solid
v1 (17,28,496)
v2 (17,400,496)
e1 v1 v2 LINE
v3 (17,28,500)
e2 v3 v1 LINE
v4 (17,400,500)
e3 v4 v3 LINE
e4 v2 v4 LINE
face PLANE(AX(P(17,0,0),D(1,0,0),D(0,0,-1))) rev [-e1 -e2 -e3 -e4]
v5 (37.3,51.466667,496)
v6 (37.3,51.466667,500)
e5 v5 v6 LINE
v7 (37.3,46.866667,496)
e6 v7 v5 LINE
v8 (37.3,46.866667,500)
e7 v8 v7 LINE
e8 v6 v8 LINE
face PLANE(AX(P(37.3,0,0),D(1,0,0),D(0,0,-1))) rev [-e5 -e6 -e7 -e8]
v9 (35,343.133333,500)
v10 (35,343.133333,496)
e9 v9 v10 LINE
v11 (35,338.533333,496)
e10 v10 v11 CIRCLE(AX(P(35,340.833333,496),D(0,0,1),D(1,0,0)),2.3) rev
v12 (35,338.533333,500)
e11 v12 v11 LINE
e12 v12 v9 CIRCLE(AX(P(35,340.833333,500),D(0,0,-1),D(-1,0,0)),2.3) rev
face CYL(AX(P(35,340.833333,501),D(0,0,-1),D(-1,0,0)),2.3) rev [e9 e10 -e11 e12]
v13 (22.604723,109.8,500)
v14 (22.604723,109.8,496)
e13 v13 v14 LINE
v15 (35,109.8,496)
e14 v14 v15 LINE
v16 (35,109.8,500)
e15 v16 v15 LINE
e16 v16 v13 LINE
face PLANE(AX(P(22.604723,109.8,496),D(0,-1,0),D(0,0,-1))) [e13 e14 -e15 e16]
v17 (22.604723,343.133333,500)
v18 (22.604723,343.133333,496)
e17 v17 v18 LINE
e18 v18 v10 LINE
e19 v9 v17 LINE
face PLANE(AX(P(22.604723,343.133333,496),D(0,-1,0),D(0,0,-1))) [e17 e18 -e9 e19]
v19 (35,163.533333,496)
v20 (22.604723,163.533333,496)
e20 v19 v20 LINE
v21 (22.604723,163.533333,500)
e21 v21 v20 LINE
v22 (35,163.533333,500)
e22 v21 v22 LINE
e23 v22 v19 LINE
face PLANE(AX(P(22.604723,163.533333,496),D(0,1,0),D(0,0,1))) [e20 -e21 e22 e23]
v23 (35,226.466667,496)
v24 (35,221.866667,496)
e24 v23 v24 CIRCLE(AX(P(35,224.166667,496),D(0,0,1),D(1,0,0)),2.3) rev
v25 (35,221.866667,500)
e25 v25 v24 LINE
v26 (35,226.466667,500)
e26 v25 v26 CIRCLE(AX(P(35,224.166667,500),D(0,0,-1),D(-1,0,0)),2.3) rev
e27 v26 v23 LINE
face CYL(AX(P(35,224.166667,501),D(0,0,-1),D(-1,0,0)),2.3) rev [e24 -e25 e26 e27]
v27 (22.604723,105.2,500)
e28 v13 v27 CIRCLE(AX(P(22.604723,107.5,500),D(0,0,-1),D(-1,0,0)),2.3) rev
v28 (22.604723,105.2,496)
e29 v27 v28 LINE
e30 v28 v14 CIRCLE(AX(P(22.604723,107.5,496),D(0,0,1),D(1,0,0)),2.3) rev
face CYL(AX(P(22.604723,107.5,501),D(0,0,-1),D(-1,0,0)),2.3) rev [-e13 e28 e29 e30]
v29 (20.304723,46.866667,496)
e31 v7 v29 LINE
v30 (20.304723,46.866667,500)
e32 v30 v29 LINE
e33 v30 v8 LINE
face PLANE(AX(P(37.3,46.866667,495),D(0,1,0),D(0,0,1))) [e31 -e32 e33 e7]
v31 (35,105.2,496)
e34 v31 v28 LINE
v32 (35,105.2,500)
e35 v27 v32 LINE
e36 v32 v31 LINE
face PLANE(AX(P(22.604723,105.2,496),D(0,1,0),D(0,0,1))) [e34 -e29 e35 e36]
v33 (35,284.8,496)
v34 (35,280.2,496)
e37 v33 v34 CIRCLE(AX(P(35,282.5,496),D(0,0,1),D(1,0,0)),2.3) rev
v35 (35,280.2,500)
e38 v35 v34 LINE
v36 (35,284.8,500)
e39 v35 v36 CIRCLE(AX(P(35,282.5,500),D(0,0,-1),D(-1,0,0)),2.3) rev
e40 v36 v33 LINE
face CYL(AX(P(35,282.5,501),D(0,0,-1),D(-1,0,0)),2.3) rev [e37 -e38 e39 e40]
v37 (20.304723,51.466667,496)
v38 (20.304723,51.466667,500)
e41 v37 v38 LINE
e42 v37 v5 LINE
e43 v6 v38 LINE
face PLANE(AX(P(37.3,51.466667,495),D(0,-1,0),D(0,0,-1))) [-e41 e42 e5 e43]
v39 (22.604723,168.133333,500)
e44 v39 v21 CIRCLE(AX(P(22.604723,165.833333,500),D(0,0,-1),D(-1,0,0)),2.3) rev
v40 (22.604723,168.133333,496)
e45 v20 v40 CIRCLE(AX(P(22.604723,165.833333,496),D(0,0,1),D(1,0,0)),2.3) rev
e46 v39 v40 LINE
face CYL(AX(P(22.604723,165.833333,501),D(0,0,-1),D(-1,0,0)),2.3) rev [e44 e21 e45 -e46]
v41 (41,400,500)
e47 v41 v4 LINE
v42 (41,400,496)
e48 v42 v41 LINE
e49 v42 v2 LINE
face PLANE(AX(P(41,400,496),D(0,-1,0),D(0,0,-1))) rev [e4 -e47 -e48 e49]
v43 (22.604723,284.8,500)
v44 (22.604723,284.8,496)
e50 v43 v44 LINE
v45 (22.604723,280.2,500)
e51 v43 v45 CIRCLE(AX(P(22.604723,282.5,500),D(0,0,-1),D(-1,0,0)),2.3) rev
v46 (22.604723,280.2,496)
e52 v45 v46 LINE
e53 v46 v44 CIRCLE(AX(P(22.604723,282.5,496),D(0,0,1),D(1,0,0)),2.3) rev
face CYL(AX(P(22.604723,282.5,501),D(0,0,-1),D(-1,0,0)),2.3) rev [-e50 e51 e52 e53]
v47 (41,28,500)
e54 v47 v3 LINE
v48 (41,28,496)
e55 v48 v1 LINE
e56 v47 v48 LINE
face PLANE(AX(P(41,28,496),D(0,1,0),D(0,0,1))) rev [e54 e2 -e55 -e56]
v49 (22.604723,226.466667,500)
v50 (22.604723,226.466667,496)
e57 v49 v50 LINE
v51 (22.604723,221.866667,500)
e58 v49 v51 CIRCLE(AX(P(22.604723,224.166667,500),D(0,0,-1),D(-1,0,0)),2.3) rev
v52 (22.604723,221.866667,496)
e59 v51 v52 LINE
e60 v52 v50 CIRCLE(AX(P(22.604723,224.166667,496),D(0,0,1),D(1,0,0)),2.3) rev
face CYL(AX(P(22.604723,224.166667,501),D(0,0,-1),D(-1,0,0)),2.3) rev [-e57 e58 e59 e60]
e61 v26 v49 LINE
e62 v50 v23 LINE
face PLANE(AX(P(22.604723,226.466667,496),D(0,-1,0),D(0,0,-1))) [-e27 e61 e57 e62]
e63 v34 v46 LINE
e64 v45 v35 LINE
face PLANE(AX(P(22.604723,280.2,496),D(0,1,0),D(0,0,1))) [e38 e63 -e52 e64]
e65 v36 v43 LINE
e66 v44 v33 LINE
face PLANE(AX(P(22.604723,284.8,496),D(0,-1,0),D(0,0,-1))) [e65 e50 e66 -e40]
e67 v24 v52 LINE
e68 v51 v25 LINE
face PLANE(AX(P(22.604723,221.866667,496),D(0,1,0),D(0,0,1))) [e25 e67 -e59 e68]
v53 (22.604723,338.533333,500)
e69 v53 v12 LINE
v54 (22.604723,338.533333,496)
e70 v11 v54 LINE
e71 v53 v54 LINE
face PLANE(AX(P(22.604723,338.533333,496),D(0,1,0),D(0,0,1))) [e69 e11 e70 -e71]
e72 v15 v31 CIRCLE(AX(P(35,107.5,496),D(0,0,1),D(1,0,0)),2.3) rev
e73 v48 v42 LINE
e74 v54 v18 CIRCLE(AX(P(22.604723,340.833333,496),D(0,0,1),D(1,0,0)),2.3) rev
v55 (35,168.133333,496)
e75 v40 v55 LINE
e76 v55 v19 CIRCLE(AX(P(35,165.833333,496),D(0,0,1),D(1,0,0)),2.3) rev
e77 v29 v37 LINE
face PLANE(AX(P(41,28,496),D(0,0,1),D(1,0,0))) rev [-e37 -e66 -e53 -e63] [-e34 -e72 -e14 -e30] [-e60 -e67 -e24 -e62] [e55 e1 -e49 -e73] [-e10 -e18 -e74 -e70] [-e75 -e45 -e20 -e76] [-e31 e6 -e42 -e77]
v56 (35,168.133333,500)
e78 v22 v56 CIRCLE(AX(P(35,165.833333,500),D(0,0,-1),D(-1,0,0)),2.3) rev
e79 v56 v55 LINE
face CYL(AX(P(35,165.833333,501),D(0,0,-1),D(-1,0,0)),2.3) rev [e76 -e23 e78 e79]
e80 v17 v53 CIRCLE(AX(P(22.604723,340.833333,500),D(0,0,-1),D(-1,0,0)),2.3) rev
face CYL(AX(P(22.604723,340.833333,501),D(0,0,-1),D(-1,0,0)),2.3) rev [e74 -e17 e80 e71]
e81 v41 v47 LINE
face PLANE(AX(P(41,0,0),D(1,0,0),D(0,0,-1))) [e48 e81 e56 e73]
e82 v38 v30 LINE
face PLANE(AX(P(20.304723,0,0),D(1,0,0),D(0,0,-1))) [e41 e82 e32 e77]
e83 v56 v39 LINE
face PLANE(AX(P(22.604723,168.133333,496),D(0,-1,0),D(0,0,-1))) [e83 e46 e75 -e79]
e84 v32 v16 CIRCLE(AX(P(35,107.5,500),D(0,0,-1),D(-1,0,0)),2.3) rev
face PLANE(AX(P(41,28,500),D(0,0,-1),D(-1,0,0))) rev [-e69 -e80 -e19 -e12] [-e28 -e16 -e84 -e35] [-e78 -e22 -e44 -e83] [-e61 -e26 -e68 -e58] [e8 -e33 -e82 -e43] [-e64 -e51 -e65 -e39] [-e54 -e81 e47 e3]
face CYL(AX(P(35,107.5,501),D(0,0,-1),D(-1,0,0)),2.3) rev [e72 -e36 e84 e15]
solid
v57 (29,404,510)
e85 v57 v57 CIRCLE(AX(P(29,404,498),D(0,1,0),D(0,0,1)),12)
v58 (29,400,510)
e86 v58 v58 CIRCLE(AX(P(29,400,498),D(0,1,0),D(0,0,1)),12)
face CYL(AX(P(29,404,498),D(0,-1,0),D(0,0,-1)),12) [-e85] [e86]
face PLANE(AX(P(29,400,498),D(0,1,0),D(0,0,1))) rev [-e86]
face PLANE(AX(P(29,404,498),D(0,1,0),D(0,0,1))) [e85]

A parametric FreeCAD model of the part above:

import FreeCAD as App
import Part
import Sketcher

V = App.Vector

doc = App.newDocument("Part")
body = doc.addObject("PartDesign::Body", "Body")

# Sketch on YZ plane
sketch1 = body.newObject("Sketcher::SketchObject", "Sketch")
sketch1.AttachmentSupport = (doc.getObject("YZ_Plane"), [""])
sketch1.MapMode = "FlatFace"
sketch1.AttachmentOffset = App.Placement(V(0, 0, 20.304723), App.Rotation())
sketch1.addGeometry([
    Part.LineSegment(V(51.5, 501, 0), V(46.9, 501, 0)),
    Part.LineSegment(V(46.9, 501, 0), V(46.9, 495, 0)),
    Part.LineSegment(V(46.9, 495, 0), V(51.5, 495, 0)),
    Part.LineSegment(V(51.5, 495, 0), V(51.5, 501, 0)),
], False)
sketch1.addConstraint([
    Sketcher.Constraint("Coincident", 0, 2, 1, 1),
    Sketcher.Constraint("Coincident", 1, 2, 2, 1),
    Sketcher.Constraint("Coincident", 2, 2, 3, 1),
    Sketcher.Constraint("Coincident", 3, 2, 0, 1),
    Sketcher.Constraint("Horizontal", 0),
    Sketcher.Constraint("Vertical", 1),
    Sketcher.Constraint("Horizontal", 2),
    Sketcher.Constraint("Vertical", 3),
    Sketcher.Constraint("DistanceY", 1, 2, 1, 1, 6.0),
    Sketcher.Constraint("DistanceX", 0, 2, 0, 1, 4.6),
    Sketcher.Constraint("DistanceY", -1, 1, 0, 2, 501.0),
    Sketcher.Constraint("DistanceX", -1, 1, 0, 2, 46.866667),
])
pad1 = body.newObject("PartDesign::Pad", "Pad")
pad1.Profile = sketch1
pad1.Length = 16.995277
body2 = doc.addObject("PartDesign::Body", "Body001")

# Sketch on YZ plane
sketch2 = body2.newObject("Sketcher::SketchObject", "Sketch001")
sketch2.AttachmentSupport = (doc.getObject("YZ_Plane001"), [""])
sketch2.MapMode = "FlatFace"
sketch2.AttachmentOffset = App.Placement(V(0, 0, 17), App.Rotation())
sketch2.addGeometry([
    Part.LineSegment(V(400, 500, 0), V(28, 500, 0)),
    Part.LineSegment(V(28, 500, 0), V(28, 496, 0)),
    Part.LineSegment(V(28, 496, 0), V(400, 496, 0)),
    Part.LineSegment(V(400, 496, 0), V(400, 500, 0)),
], False)
sketch2.addConstraint([
    Sketcher.Constraint("Coincident", 0, 2, 1, 1),
    Sketcher.Constraint("Coincident", 1, 2, 2, 1),
    Sketcher.Constraint("Coincident", 2, 2, 3, 1),
    Sketcher.Constraint("Coincident", 3, 2, 0, 1),
    Sketcher.Constraint("Horizontal", 0),
    Sketcher.Constraint("Vertical", 1),
    Sketcher.Constraint("Horizontal", 2),
    Sketcher.Constraint("Vertical", 3),
    Sketcher.Constraint("DistanceX", 0, 2, 0, 1, 372.0),
    Sketcher.Constraint("DistanceY", 1, 2, 1, 1, 4.0),
    Sketcher.Constraint("DistanceX", -1, 1, 0, 2, 28.0),
    Sketcher.Constraint("DistanceY", -1, 1, 0, 2, 500.0),
])
pad2 = body2.newObject("PartDesign::Pad", "Pad001")
pad2.Profile = sketch2
pad2.Length = 24
doc.recompute()

boolean = body2.newObject("PartDesign::Boolean", "Boolean")
boolean.Type = "Cut"
boolean.addObjects([body])
body3 = doc.addObject("PartDesign::Body", "Body002")

# Sketch on XY plane
sketch3 = body3.newObject("Sketcher::SketchObject", "Sketch002")
sketch3.AttachmentSupport = (doc.getObject("XY_Plane002"), [""])
sketch3.MapMode = "FlatFace"
sketch3.AttachmentOffset = App.Placement(V(0, 0, 495), App.Rotation())
sketch3.addGeometry(Part.Circle(V(22.6, 107.5, 0), V(0, 0, 1), 2.3), False)
sketch3.addConstraint([
    Sketcher.Constraint("Diameter", 0, 4.6),
    Sketcher.Constraint("DistanceY", -1, 1, 0, 3, 107.5),
    Sketcher.Constraint("DistanceX", -1, 1, 0, 3, 22.604723),
])
pad3 = body3.newObject("PartDesign::Pad", "Pad002")
pad3.Profile = sketch3
pad3.Length = 6
doc.recompute()

boolean2 = body2.newObject("PartDesign::Boolean", "Boolean001")
boolean2.Type = "Cut"
boolean2.addObjects([body3])
body4 = doc.addObject("PartDesign::Body", "Body003")

# Sketch on XY plane
sketch4 = body4.newObject("Sketcher::SketchObject", "Sketch003")
sketch4.AttachmentSupport = (doc.getObject("XY_Plane003"), [""])
sketch4.MapMode = "FlatFace"
sketch4.AttachmentOffset = App.Placement(V(0, 0, 495), App.Rotation())
sketch4.addGeometry(Part.Circle(V(35, 107.5, 0), V(0, 0, 1), 2.3), False)
sketch4.addConstraint([
    Sketcher.Constraint("Diameter", 0, 4.6),
    Sketcher.Constraint("DistanceX", -1, 1, 0, 3, 35.0),
    Sketcher.Constraint("DistanceY", -1, 1, 0, 3, 107.5),
])
pad4 = body4.newObject("PartDesign::Pad", "Pad003")
pad4.Profile = sketch4
pad4.Length = 6
doc.recompute()

boolean3 = body2.newObject("PartDesign::Boolean", "Boolean002")
boolean3.Type = "Cut"
boolean3.addObjects([body4])

# Sketch on XY plane
sketch5 = body2.newObject("Sketcher::SketchObject", "Sketch004")
sketch5.AttachmentSupport = (doc.getObject("XY_Plane001"), [""])
sketch5.MapMode = "FlatFace"
sketch5.addGeometry([
    Part.LineSegment(V(22.6, 109.8, 0), V(22.6, 105.2, 0)),
    Part.LineSegment(V(22.6, 105.2, 0), V(35, 105.2, 0)),
    Part.LineSegment(V(35, 105.2, 0), V(35, 109.8, 0)),
    Part.LineSegment(V(35, 109.8, 0), V(22.6, 109.8, 0)),
], False)
sketch5.addConstraint([
    Sketcher.Constraint("Coincident", 0, 2, 1, 1),
    Sketcher.Constraint("Coincident", 1, 2, 2, 1),
    Sketcher.Constraint("Coincident", 2, 2, 3, 1),
    Sketcher.Constraint("Coincident", 3, 2, 0, 1),
    Sketcher.Constraint("Vertical", 0),
    Sketcher.Constraint("Horizontal", 1),
    Sketcher.Constraint("Vertical", 2),
    Sketcher.Constraint("Horizontal", 3),
    Sketcher.Constraint("DistanceY", 0, 2, 0, 1, 4.6),
    Sketcher.Constraint("DistanceX", -1, 1, 1, 2, 35.0),
    Sketcher.Constraint("DistanceY", -1, 1, 0, 2, 105.2),
    Sketcher.Constraint("DistanceX", 1, 1, 1, 2, 12.395277),
])
pocket1 = body2.newObject("PartDesign::Pocket", "Pocket")
pocket1.Profile = sketch5
pocket1.Type = "ThroughAll"
pocket1.Midplane = True
body5 = doc.addObject("PartDesign::Body", "Body004")

# Sketch on XY plane
sketch6 = body5.newObject("Sketcher::SketchObject", "Sketch005")
sketch6.AttachmentSupport = (doc.getObject("XY_Plane004"), [""])
sketch6.MapMode = "FlatFace"
sketch6.AttachmentOffset = App.Placement(V(0, 0, 495), App.Rotation())
sketch6.addGeometry(Part.Circle(V(22.6, 165.8, 0), V(0, 0, 1), 2.3), False)
sketch6.addConstraint([
    Sketcher.Constraint("Diameter", 0, 4.6),
    Sketcher.Constraint("DistanceX", -1, 1, 0, 3, 22.604723),
    Sketcher.Constraint("DistanceY", -1, 1, 0, 3, 165.833333),
])
pad5 = body5.newObject("PartDesign::Pad", "Pad004")
pad5.Profile = sketch6
pad5.Length = 6
doc.recompute()

boolean4 = body2.newObject("PartDesign::Boolean", "Boolean003")
boolean4.Type = "Cut"
boolean4.addObjects([body5])
body6 = doc.addObject("PartDesign::Body", "Body005")

# Sketch on XY plane
sketch7 = body6.newObject("Sketcher::SketchObject", "Sketch006")
sketch7.AttachmentSupport = (doc.getObject("XY_Plane005"), [""])
sketch7.MapMode = "FlatFace"
sketch7.AttachmentOffset = App.Placement(V(0, 0, 495), App.Rotation())
sketch7.addGeometry(Part.Circle(V(35, 165.8, 0), V(0, 0, 1), 2.3), False)
sketch7.addConstraint([
    Sketcher.Constraint("Diameter", 0, 4.6),
    Sketcher.Constraint("DistanceX", -1, 1, 0, 3, 35.0),
    Sketcher.Constraint("DistanceY", -1, 1, 0, 3, 165.833333),
])
pad6 = body6.newObject("PartDesign::Pad", "Pad005")
pad6.Profile = sketch7
pad6.Length = 6
doc.recompute()

boolean5 = body2.newObject("PartDesign::Boolean", "Boolean004")
boolean5.Type = "Cut"
boolean5.addObjects([body6])

# Sketch on XY plane
sketch8 = body2.newObject("Sketcher::SketchObject", "Sketch007")
sketch8.AttachmentSupport = (doc.getObject("XY_Plane001"), [""])
sketch8.MapMode = "FlatFace"
sketch8.addGeometry([
    Part.LineSegment(V(22.6, 168.1, 0), V(22.6, 163.5, 0)),
    Part.LineSegment(V(22.6, 163.5, 0), V(35, 163.5, 0)),
    Part.LineSegment(V(35, 163.5, 0), V(35, 168.1, 0)),
    Part.LineSegment(V(35, 168.1, 0), V(22.6, 168.1, 0)),
], False)
sketch8.addConstraint([
    Sketcher.Constraint("Coincident", 0, 2, 1, 1),
    Sketcher.Constraint("Coincident", 1, 2, 2, 1),
    Sketcher.Constraint("Coincident", 2, 2, 3, 1),
    Sketcher.Constraint("Coincident", 3, 2, 0, 1),
    Sketcher.Constraint("Vertical", 0),
    Sketcher.Constraint("Horizontal", 1),
    Sketcher.Constraint("Vertical", 2),
    Sketcher.Constraint("Horizontal", 3),
    Sketcher.Constraint("DistanceY", 0, 2, 0, 1, 4.6),
    Sketcher.Constraint("DistanceX", -1, 1, 1, 2, 35.0),
    Sketcher.Constraint("DistanceX", 1, 1, 1, 2, 12.395277),
    Sketcher.Constraint("DistanceY", -1, 1, 0, 2, 163.533333),
])
pocket2 = body2.newObject("PartDesign::Pocket", "Pocket001")
pocket2.Profile = sketch8
pocket2.Type = "ThroughAll"
pocket2.Midplane = True
body7 = doc.addObject("PartDesign::Body", "Body006")

# Sketch on XY plane
sketch9 = body7.newObject("Sketcher::SketchObject", "Sketch008")
sketch9.AttachmentSupport = (doc.getObject("XY_Plane006"), [""])
sketch9.MapMode = "FlatFace"
sketch9.AttachmentOffset = App.Placement(V(0, 0, 495), App.Rotation())
sketch9.addGeometry(Part.Circle(V(22.6, 224.2, 0), V(0, 0, 1), 2.3), False)
sketch9.addConstraint([
    Sketcher.Constraint("Diameter", 0, 4.6),
    Sketcher.Constraint("DistanceX", -1, 1, 0, 3, 22.604723),
    Sketcher.Constraint("DistanceY", -1, 1, 0, 3, 224.166667),
])
pad7 = body7.newObject("PartDesign::Pad", "Pad006")
pad7.Profile = sketch9
pad7.Length = 6
doc.recompute()

boolean6 = body2.newObject("PartDesign::Boolean", "Boolean005")
boolean6.Type = "Cut"
boolean6.addObjects([body7])
body8 = doc.addObject("PartDesign::Body", "Body007")

# Sketch on XY plane
sketch10 = body8.newObject("Sketcher::SketchObject", "Sketch009")
sketch10.AttachmentSupport = (doc.getObject("XY_Plane007"), [""])
sketch10.MapMode = "FlatFace"
sketch10.AttachmentOffset = App.Placement(V(0, 0, 495), App.Rotation())
sketch10.addGeometry(Part.Circle(V(35, 224.2, 0), V(0, 0, 1), 2.3), False)
sketch10.addConstraint([
    Sketcher.Constraint("Diameter", 0, 4.6),
    Sketcher.Constraint("DistanceX", -1, 1, 0, 3, 35.0),
    Sketcher.Constraint("DistanceY", -1, 1, 0, 3, 224.166667),
])
pad8 = body8.newObject("PartDesign::Pad", "Pad007")
pad8.Profile = sketch10
pad8.Length = 6
doc.recompute()

boolean7 = body2.newObject("PartDesign::Boolean", "Boolean006")
boolean7.Type = "Cut"
boolean7.addObjects([body8])

# Sketch on XY plane
sketch11 = body2.newObject("Sketcher::SketchObject", "Sketch010")
sketch11.AttachmentSupport = (doc.getObject("XY_Plane001"), [""])
sketch11.MapMode = "FlatFace"
sketch11.addGeometry([
    Part.LineSegment(V(22.6, 226.5, 0), V(22.6, 221.9, 0)),
    Part.LineSegment(V(22.6, 221.9, 0), V(35, 221.9, 0)),
    Part.LineSegment(V(35, 221.9, 0), V(35, 226.5, 0)),
    Part.LineSegment(V(35, 226.5, 0), V(22.6, 226.5, 0)),
], False)
sketch11.addConstraint([
    Sketcher.Constraint("Coincident", 0, 2, 1, 1),
    Sketcher.Constraint("Coincident", 1, 2, 2, 1),
    Sketcher.Constraint("Coincident", 2, 2, 3, 1),
    Sketcher.Constraint("Coincident", 3, 2, 0, 1),
    Sketcher.Constraint("Vertical", 0),
    Sketcher.Constraint("Horizontal", 1),
    Sketcher.Constraint("Vertical", 2),
    Sketcher.Constraint("Horizontal", 3),
    Sketcher.Constraint("DistanceY", 0, 2, 0, 1, 4.6),
    Sketcher.Constraint("DistanceX", -1, 1, 1, 2, 35.0),
    Sketcher.Constraint("DistanceX", 1, 1, 1, 2, 12.395277),
    Sketcher.Constraint("DistanceY", -1, 1, 0, 2, 221.866667),
])
pocket3 = body2.newObject("PartDesign::Pocket", "Pocket002")
pocket3.Profile = sketch11
pocket3.Type = "ThroughAll"
pocket3.Midplane = True
body9 = doc.addObject("PartDesign::Body", "Body008")

# Sketch on XY plane
sketch12 = body9.newObject("Sketcher::SketchObject", "Sketch011")
sketch12.AttachmentSupport = (doc.getObject("XY_Plane008"), [""])
sketch12.MapMode = "FlatFace"
sketch12.AttachmentOffset = App.Placement(V(0, 0, 495), App.Rotation())
sketch12.addGeometry(Part.Circle(V(22.6, 282.5, 0), V(0, 0, 1), 2.3), False)
sketch12.addConstraint([
    Sketcher.Constraint("Diameter", 0, 4.6),
    Sketcher.Constraint("DistanceY", -1, 1, 0, 3, 282.5),
    Sketcher.Constraint("DistanceX", -1, 1, 0, 3, 22.604723),
])
pad9 = body9.newObject("PartDesign::Pad", "Pad008")
pad9.Profile = sketch12
pad9.Length = 6
doc.recompute()

boolean8 = body2.newObject("PartDesign::Boolean", "Boolean007")
boolean8.Type = "Cut"
boolean8.addObjects([body9])
body10 = doc.addObject("PartDesign::Body", "Body009")

# Sketch on XY plane
sketch13 = body10.newObject("Sketcher::SketchObject", "Sketch012")
sketch13.AttachmentSupport = (doc.getObject("XY_Plane009"), [""])
sketch13.MapMode = "FlatFace"
sketch13.AttachmentOffset = App.Placement(V(0, 0, 495), App.Rotation())
sketch13.addGeometry(Part.Circle(V(35, 282.5, 0), V(0, 0, 1), 2.3), False)
sketch13.addConstraint([
    Sketcher.Constraint("Diameter", 0, 4.6),
    Sketcher.Constraint("DistanceX", -1, 1, 0, 3, 35.0),
    Sketcher.Constraint("DistanceY", -1, 1, 0, 3, 282.5),
])
pad10 = body10.newObject("PartDesign::Pad", "Pad009")
pad10.Profile = sketch13
pad10.Length = 6
doc.recompute()

boolean9 = body2.newObject("PartDesign::Boolean", "Boolean008")
boolean9.Type = "Cut"
boolean9.addObjects([body10])

# Sketch on XY plane
sketch14 = body2.newObject("Sketcher::SketchObject", "Sketch013")
sketch14.AttachmentSupport = (doc.getObject("XY_Plane001"), [""])
sketch14.MapMode = "FlatFace"
sketch14.addGeometry([
    Part.LineSegment(V(22.6, 284.8, 0), V(22.6, 280.2, 0)),
    Part.LineSegment(V(22.6, 280.2, 0), V(35, 280.2, 0)),
    Part.LineSegment(V(35, 280.2, 0), V(35, 284.8, 0)),
    Part.LineSegment(V(35, 284.8, 0), V(22.6, 284.8, 0)),
], False)
sketch14.addConstraint([
    Sketcher.Constraint("Coincident", 0, 2, 1, 1),
    Sketcher.Constraint("Coincident", 1, 2, 2, 1),
    Sketcher.Constraint("Coincident", 2, 2, 3, 1),
    Sketcher.Constraint("Coincident", 3, 2, 0, 1),
    Sketcher.Constraint("Vertical", 0),
    Sketcher.Constraint("Horizontal", 1),
    Sketcher.Constraint("Vertical", 2),
    Sketcher.Constraint("Horizontal", 3),
    Sketcher.Constraint("DistanceY", 0, 2, 0, 1, 4.6),
    Sketcher.Constraint("DistanceX", -1, 1, 1, 2, 35.0),
    Sketcher.Constraint("DistanceY", -1, 1, 0, 2, 280.2),
    Sketcher.Constraint("DistanceX", 1, 1, 1, 2, 12.395277),
])
pocket4 = body2.newObject("PartDesign::Pocket", "Pocket003")
pocket4.Profile = sketch14
pocket4.Type = "ThroughAll"
pocket4.Midplane = True
body11 = doc.addObject("PartDesign::Body", "Body010")

# Sketch on XY plane
sketch15 = body11.newObject("Sketcher::SketchObject", "Sketch014")
sketch15.AttachmentSupport = (doc.getObject("XY_Plane010"), [""])
sketch15.MapMode = "FlatFace"
sketch15.AttachmentOffset = App.Placement(V(0, 0, 495), App.Rotation())
sketch15.addGeometry(Part.Circle(V(22.6, 340.8, 0), V(0, 0, 1), 2.3), False)
sketch15.addConstraint([
    Sketcher.Constraint("Diameter", 0, 4.6),
    Sketcher.Constraint("DistanceX", -1, 1, 0, 3, 22.604723),
    Sketcher.Constraint("DistanceY", -1, 1, 0, 3, 340.833333),
])
pad11 = body11.newObject("PartDesign::Pad", "Pad010")
pad11.Profile = sketch15
pad11.Length = 6
doc.recompute()

boolean10 = body2.newObject("PartDesign::Boolean", "Boolean009")
boolean10.Type = "Cut"
boolean10.addObjects([body11])
body12 = doc.addObject("PartDesign::Body", "Body011")

# Sketch on XY plane
sketch16 = body12.newObject("Sketcher::SketchObject", "Sketch015")
sketch16.AttachmentSupport = (doc.getObject("XY_Plane011"), [""])
sketch16.MapMode = "FlatFace"
sketch16.AttachmentOffset = App.Placement(V(0, 0, 495), App.Rotation())
sketch16.addGeometry(Part.Circle(V(35, 340.8, 0), V(0, 0, 1), 2.3), False)
sketch16.addConstraint([
    Sketcher.Constraint("Diameter", 0, 4.6),
    Sketcher.Constraint("DistanceX", -1, 1, 0, 3, 35.0),
    Sketcher.Constraint("DistanceY", -1, 1, 0, 3, 340.833333),
])
pad12 = body12.newObject("PartDesign::Pad", "Pad011")
pad12.Profile = sketch16
pad12.Length = 6
doc.recompute()

boolean11 = body2.newObject("PartDesign::Boolean", "Boolean010")
boolean11.Type = "Cut"
boolean11.addObjects([body12])

# Sketch on XY plane
sketch17 = body2.newObject("Sketcher::SketchObject", "Sketch016")
sketch17.AttachmentSupport = (doc.getObject("XY_Plane001"), [""])
sketch17.MapMode = "FlatFace"
sketch17.addGeometry([
    Part.LineSegment(V(22.6, 343.1, 0), V(22.6, 338.5, 0)),
    Part.LineSegment(V(22.6, 338.5, 0), V(35, 338.5, 0)),
    Part.LineSegment(V(35, 338.5, 0), V(35, 343.1, 0)),
    Part.LineSegment(V(35, 343.1, 0), V(22.6, 343.1, 0)),
], False)
sketch17.addConstraint([
    Sketcher.Constraint("Coincident", 0, 2, 1, 1),
    Sketcher.Constraint("Coincident", 1, 2, 2, 1),
    Sketcher.Constraint("Coincident", 2, 2, 3, 1),
    Sketcher.Constraint("Coincident", 3, 2, 0, 1),
    Sketcher.Constraint("Vertical", 0),
    Sketcher.Constraint("Horizontal", 1),
    Sketcher.Constraint("Vertical", 2),
    Sketcher.Constraint("Horizontal", 3),
    Sketcher.Constraint("DistanceY", 0, 2, 0, 1, 4.6),
    Sketcher.Constraint("DistanceX", -1, 1, 1, 2, 35.0),
    Sketcher.Constraint("DistanceX", 1, 1, 1, 2, 12.395277),
    Sketcher.Constraint("DistanceY", -1, 1, 0, 2, 338.533333),
])
pocket5 = body2.newObject("PartDesign::Pocket", "Pocket004")
pocket5.Profile = sketch17
pocket5.Type = "ThroughAll"
pocket5.Midplane = True
body13 = doc.addObject("PartDesign::Body", "Body012")

# Sketch on XZ plane
sketch18 = body13.newObject("Sketcher::SketchObject", "Sketch017")
sketch18.AttachmentSupport = (doc.getObject("XZ_Plane012"), [""])
sketch18.MapMode = "FlatFace"
sketch18.AttachmentOffset = App.Placement(V(0, 0, -400), App.Rotation())
sketch18.addGeometry(Part.Circle(V(29, 498, 0), V(0, 0, 1), 12), False)
sketch18.addConstraint([
    Sketcher.Constraint("Diameter", 0, 24.0),
    Sketcher.Constraint("DistanceX", -1, 1, 0, 3, 29.0),
    Sketcher.Constraint("DistanceY", -1, 1, 0, 3, 498.0),
])
pad13 = body13.newObject("PartDesign::Pad", "Pad012")
pad13.Profile = sketch18
pad13.Length = 4
pad13.Reversed = True

doc.recompute()
